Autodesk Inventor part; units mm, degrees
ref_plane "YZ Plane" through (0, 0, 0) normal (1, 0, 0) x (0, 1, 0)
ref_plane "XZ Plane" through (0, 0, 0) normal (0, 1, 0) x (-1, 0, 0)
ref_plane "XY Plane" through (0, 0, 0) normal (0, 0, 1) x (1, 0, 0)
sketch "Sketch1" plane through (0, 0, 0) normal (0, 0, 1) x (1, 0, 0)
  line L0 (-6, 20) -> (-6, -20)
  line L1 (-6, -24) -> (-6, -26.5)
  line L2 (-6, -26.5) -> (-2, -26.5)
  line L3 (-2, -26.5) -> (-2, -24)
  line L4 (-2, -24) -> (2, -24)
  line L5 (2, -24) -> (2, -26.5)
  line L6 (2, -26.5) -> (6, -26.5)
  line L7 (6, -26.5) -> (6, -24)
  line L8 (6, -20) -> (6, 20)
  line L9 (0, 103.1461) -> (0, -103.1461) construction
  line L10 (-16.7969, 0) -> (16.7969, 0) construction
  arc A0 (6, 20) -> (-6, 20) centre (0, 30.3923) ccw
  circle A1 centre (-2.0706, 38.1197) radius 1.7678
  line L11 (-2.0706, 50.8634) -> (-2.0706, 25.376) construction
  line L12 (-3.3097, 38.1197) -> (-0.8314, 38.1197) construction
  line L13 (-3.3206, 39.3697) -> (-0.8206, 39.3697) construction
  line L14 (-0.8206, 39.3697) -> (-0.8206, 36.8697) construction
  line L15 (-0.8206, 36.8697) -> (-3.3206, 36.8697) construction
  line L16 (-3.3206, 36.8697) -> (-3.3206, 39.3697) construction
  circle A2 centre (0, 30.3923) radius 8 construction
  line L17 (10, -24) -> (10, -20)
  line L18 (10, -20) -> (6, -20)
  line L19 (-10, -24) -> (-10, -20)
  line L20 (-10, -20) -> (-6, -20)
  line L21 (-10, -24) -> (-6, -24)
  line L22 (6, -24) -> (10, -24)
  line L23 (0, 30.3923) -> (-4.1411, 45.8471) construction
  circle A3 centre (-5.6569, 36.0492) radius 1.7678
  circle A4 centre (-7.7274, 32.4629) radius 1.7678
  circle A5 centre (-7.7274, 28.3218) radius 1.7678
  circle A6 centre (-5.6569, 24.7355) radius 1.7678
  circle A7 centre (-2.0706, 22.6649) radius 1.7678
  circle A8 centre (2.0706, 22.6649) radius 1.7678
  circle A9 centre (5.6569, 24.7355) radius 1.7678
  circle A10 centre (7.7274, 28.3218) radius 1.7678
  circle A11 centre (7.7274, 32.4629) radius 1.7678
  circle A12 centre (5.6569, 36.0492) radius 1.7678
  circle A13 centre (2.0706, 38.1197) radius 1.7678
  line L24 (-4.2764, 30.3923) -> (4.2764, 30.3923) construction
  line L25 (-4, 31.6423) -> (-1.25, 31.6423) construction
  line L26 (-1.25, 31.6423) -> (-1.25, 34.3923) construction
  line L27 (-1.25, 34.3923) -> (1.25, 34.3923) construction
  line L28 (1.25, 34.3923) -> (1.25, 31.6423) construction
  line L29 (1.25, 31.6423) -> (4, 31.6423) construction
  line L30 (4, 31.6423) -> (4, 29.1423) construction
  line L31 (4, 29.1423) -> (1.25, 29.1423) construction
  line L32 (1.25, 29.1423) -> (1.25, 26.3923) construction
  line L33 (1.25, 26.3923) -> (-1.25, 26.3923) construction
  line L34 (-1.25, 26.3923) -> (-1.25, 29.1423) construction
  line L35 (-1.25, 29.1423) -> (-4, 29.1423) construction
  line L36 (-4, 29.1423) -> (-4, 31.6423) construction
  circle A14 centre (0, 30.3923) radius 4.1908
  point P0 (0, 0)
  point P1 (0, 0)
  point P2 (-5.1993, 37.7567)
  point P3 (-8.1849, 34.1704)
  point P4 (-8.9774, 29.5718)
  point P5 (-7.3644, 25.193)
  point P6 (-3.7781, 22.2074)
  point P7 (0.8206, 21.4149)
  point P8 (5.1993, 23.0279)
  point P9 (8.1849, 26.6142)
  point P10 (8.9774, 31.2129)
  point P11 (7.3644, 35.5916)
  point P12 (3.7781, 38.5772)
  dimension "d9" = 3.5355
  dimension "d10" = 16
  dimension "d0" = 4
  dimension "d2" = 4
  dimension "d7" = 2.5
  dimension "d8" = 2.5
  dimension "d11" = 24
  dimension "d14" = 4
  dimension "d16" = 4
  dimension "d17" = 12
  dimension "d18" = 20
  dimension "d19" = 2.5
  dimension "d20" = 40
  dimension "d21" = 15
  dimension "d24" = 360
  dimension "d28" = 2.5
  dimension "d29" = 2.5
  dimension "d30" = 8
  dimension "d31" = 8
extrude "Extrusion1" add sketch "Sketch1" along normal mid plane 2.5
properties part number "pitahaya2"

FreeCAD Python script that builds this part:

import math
import FreeCAD as App
import Part
import Sketcher
Q = App.Units.Quantity

doc = App.newDocument("Part")
body = doc.addObject("PartDesign::Body", "Body")

# Sketch on XY plane
sketch1 = body.newObject("Sketcher::SketchObject", "Sketch")
sketch1.AttachmentSupport = (doc.getObject("XY_Plane"), [""])
sketch1.MapMode = "FlatFace"
sketch1.addGeometry(Part.ArcOfCircle(Part.Circle(App.Vector(0, 30.4, 0), App.Vector(0, 0, 1), 12), math.radians(-60), math.radians(240)), False)
sketch1.addGeometry(Part.LineSegment(App.Vector(-6, 20, 0), App.Vector(-6, -20, 0)), False)
sketch1.addGeometry(Part.LineSegment(App.Vector(-6, -20, 0), App.Vector(-10, -20, 0)), False)
sketch1.addGeometry(Part.LineSegment(App.Vector(-10, -20, 0), App.Vector(-10, -24, 0)), False)
sketch1.addGeometry(Part.LineSegment(App.Vector(-10, -24, 0), App.Vector(-6, -24, 0)), False)
sketch1.addGeometry(Part.LineSegment(App.Vector(-6, -24, 0), App.Vector(-6, -26.5, 0)), False)
sketch1.addGeometry(Part.LineSegment(App.Vector(-6, -26.5, 0), App.Vector(-2, -26.5, 0)), False)
sketch1.addGeometry(Part.LineSegment(App.Vector(-2, -26.5, 0), App.Vector(-2, -24, 0)), False)
sketch1.addGeometry(Part.LineSegment(App.Vector(-2, -24, 0), App.Vector(2, -24, 0)), False)
sketch1.addGeometry(Part.LineSegment(App.Vector(2, -24, 0), App.Vector(2, -26.5, 0)), False)
sketch1.addGeometry(Part.LineSegment(App.Vector(2, -26.5, 0), App.Vector(6, -26.5, 0)), False)
sketch1.addGeometry(Part.LineSegment(App.Vector(6, -26.5, 0), App.Vector(6, -24, 0)), False)
sketch1.addGeometry(Part.LineSegment(App.Vector(6, -24, 0), App.Vector(10, -24, 0)), False)
sketch1.addGeometry(Part.LineSegment(App.Vector(10, -24, 0), App.Vector(10, -20, 0)), False)
sketch1.addGeometry(Part.LineSegment(App.Vector(10, -20, 0), App.Vector(6, -20, 0)), False)
sketch1.addGeometry(Part.LineSegment(App.Vector(6, -20, 0), App.Vector(6, 20, 0)), False)
sketch1.addGeometry(Part.Circle(App.Vector(-5.7, 24.7, 0), App.Vector(0, 0, 1), 1.8), False)
sketch1.addGeometry(Part.Circle(App.Vector(-2.1, 22.7, 0), App.Vector(0, 0, 1), 1.8), False)
sketch1.addGeometry(Part.Circle(App.Vector(-7.7, 28.3, 0), App.Vector(0, 0, 1), 1.8), False)
sketch1.addGeometry(Part.Circle(App.Vector(-7.7, 32.5, 0), App.Vector(0, 0, 1), 1.8), False)
sketch1.addGeometry(Part.Circle(App.Vector(-5.7, 36, 0), App.Vector(0, 0, 1), 1.8), False)
sketch1.addGeometry(Part.Circle(App.Vector(-2.1, 38.1, 0), App.Vector(0, 0, 1), 1.8), False)
sketch1.addGeometry(Part.Circle(App.Vector(2.1, 22.7, 0), App.Vector(0, 0, 1), 1.8), False)
sketch1.addGeometry(Part.Circle(App.Vector(5.7, 24.7, 0), App.Vector(0, 0, 1), 1.8), False)
sketch1.addGeometry(Part.Circle(App.Vector(0, 30.4, 0), App.Vector(0, 0, 1), 4.2), False)
sketch1.addGeometry(Part.Circle(App.Vector(2.1, 38.1, 0), App.Vector(0, 0, 1), 1.8), False)
sketch1.addGeometry(Part.Circle(App.Vector(5.7, 36, 0), App.Vector(0, 0, 1), 1.8), False)
sketch1.addGeometry(Part.Circle(App.Vector(7.7, 28.3, 0), App.Vector(0, 0, 1), 1.8), False)
sketch1.addGeometry(Part.Circle(App.Vector(7.7, 32.5, 0), App.Vector(0, 0, 1), 1.8), False)
sketch1.addConstraint(Sketcher.Constraint("Coincident", 0, 2, 1, 1))
sketch1.addConstraint(Sketcher.Constraint("Coincident", 1, 2, 2, 1))
sketch1.addConstraint(Sketcher.Constraint("Coincident", 2, 2, 3, 1))
sketch1.addConstraint(Sketcher.Constraint("Coincident", 3, 2, 4, 1))
sketch1.addConstraint(Sketcher.Constraint("Coincident", 4, 2, 5, 1))
sketch1.addConstraint(Sketcher.Constraint("Coincident", 5, 2, 6, 1))
sketch1.addConstraint(Sketcher.Constraint("Coincident", 6, 2, 7, 1))
sketch1.addConstraint(Sketcher.Constraint("Coincident", 7, 2, 8, 1))
sketch1.addConstraint(Sketcher.Constraint("Coincident", 8, 2, 9, 1))
sketch1.addConstraint(Sketcher.Constraint("Coincident", 9, 2, 10, 1))
sketch1.addConstraint(Sketcher.Constraint("Coincident", 10, 2, 11, 1))
sketch1.addConstraint(Sketcher.Constraint("Coincident", 11, 2, 12, 1))
sketch1.addConstraint(Sketcher.Constraint("Coincident", 12, 2, 13, 1))
sketch1.addConstraint(Sketcher.Constraint("Coincident", 13, 2, 14, 1))
sketch1.addConstraint(Sketcher.Constraint("Coincident", 14, 2, 15, 1))
sketch1.addConstraint(Sketcher.Constraint("Coincident", 15, 2, 0, 1))
sketch1.addConstraint(Sketcher.Constraint("Vertical", 1))
sketch1.addConstraint(Sketcher.Constraint("Horizontal", 2))
sketch1.addConstraint(Sketcher.Constraint("Vertical", 3))
sketch1.addConstraint(Sketcher.Constraint("Horizontal", 4))
sketch1.addConstraint(Sketcher.Constraint("Vertical", 5))
sketch1.addConstraint(Sketcher.Constraint("Horizontal", 6))
sketch1.addConstraint(Sketcher.Constraint("Vertical", 7))
sketch1.addConstraint(Sketcher.Constraint("Horizontal", 8))
sketch1.addConstraint(Sketcher.Constraint("Vertical", 9))
sketch1.addConstraint(Sketcher.Constraint("Horizontal", 10))
sketch1.addConstraint(Sketcher.Constraint("Vertical", 11))
sketch1.addConstraint(Sketcher.Constraint("Horizontal", 12))
sketch1.addConstraint(Sketcher.Constraint("Vertical", 13))
sketch1.addConstraint(Sketcher.Constraint("Horizontal", 14))
sketch1.addConstraint(Sketcher.Constraint("Vertical", 15))
sketch1.addConstraint(Sketcher.Constraint("Coincident", 24, 3, 0, 3))
sketch1.addConstraint(Sketcher.Constraint("Equal", 16, 17))
sketch1.addConstraint(Sketcher.Constraint("Equal", 17, 18))
sketch1.addConstraint(Sketcher.Constraint("Equal", 18, 19))
sketch1.addConstraint(Sketcher.Constraint("Equal", 19, 20))
sketch1.addConstraint(Sketcher.Constraint("Equal", 20, 21))
sketch1.addConstraint(Sketcher.Constraint("Equal", 21, 22))
sketch1.addConstraint(Sketcher.Constraint("Equal", 22, 23))
sketch1.addConstraint(Sketcher.Constraint("Equal", 23, 25))
sketch1.addConstraint(Sketcher.Constraint("Equal", 25, 26))
sketch1.addConstraint(Sketcher.Constraint("Equal", 26, 27))
sketch1.addConstraint(Sketcher.Constraint("Equal", 27, 28))
sketch1.addConstraint(Sketcher.Constraint("Symmetric", 0, 2, 14, 2, -1, 1))
sketch1.addConstraint(Sketcher.Constraint("Symmetric", 17, 3, 22, 3, -2))
sketch1.addConstraint(Sketcher.Constraint("Symmetric", 16, 3, 23, 3, -2))
sketch1.addConstraint(Sketcher.Constraint("Symmetric", 21, 3, 25, 3, -2))
sketch1.addConstraint(Sketcher.Constraint("Symmetric", 20, 3, 26, 3, -2))
sketch1.addConstraint(Sketcher.Constraint("Symmetric", 18, 3, 27, 3, -2))
sketch1.addConstraint(Sketcher.Constraint("Symmetric", 19, 3, 28, 3, -2))
sketch1.addConstraint(Sketcher.Constraint("Symmetric", 6, 2, 9, 2, -2))
sketch1.addConstraint(Sketcher.Constraint("Symmetric", 4, 2, 11, 2, -2))
sketch1.addConstraint(Sketcher.Constraint("Symmetric", 2, 2, 13, 2, -2))
sketch1.addConstraint(Sketcher.Constraint("PointOnObject", 0, 3, -2))
sketch1.addConstraint(Sketcher.Constraint("Horizontal", 4, 2, 7, 2))
sketch1.addConstraint(Sketcher.Constraint("Vertical", 18, 3, 19, 3))
sketch1.addConstraint(Sketcher.Constraint("Vertical", 16, 3, 20, 3))
sketch1.addConstraint(Sketcher.Constraint("Vertical", 17, 3, 21, 3))
sketch1.addConstraint(Sketcher.Constraint("Vertical", 1, 2, 4, 2))
sketch1.addConstraint(Sketcher.Constraint("Equal", 4, 6))
sketch1.addConstraint(Sketcher.Constraint("Equal", 6, 8))
sketch1.addConstraint(Sketcher.Constraint("Equal", 14, 3))
sketch1.addConstraint(Sketcher.Constraint("Radius", 0, Q("12 mm")))
sketch1.addConstraint(Sketcher.Constraint("DistanceX", 2, 2, 2, 1, Q("4 mm")))
sketch1.addConstraint(Sketcher.Constraint("DistanceY", 1, 2, 1, 1, Q("40 mm")))
sketch1.addConstraint(Sketcher.Constraint("DistanceY", 5, 2, 5, 1, Q("2.5 mm")))
sketch1.addConstraint(Sketcher.Constraint("Diameter", 16, Q("3.5356 mm")))
sketch1.addConstraint(Sketcher.Constraint("Diameter", 24, Q("8.3816 mm")))
sketch1.addConstraint(Sketcher.Constraint("DistanceX", 16, 3, -1, 1, Q("5.657 mm")))
sketch1.addConstraint(Sketcher.Constraint("DistanceY", -1, 1, 17, 3, Q("22.665 mm")))
sketch1.addConstraint(Sketcher.Constraint("DistanceY", -1, 1, 19, 3, Q("32.463 mm")))
sketch1.addConstraint(Sketcher.Constraint("DistanceY", 17, 3, 18, 3, Q("5.657 mm")))
sketch1.addConstraint(Sketcher.Constraint("DistanceY", 0, 3, 20, 3, Q("5.657 mm")))
sketch1.addConstraint(Sketcher.Constraint("DistanceY", 18, 3, 21, 3, Q("9.798 mm")))
sketch1.addConstraint(Sketcher.Constraint("DistanceX", 18, 3, 22, 3, Q("9.798 mm")))
sketch1.addConstraint(Sketcher.Constraint("DistanceY", -1, 1, 16, 3, Q("24.7355 mm")))
sketch1.addConstraint(Sketcher.Constraint("DistanceX", 17, 3, -1, 1, Q("2.0706 mm")))
pad1 = body.newObject("PartDesign::Pad", "Pad")
pad1.Profile = sketch1
pad1.Length = 2.5
pad1.Midplane = True

doc.recompute()
